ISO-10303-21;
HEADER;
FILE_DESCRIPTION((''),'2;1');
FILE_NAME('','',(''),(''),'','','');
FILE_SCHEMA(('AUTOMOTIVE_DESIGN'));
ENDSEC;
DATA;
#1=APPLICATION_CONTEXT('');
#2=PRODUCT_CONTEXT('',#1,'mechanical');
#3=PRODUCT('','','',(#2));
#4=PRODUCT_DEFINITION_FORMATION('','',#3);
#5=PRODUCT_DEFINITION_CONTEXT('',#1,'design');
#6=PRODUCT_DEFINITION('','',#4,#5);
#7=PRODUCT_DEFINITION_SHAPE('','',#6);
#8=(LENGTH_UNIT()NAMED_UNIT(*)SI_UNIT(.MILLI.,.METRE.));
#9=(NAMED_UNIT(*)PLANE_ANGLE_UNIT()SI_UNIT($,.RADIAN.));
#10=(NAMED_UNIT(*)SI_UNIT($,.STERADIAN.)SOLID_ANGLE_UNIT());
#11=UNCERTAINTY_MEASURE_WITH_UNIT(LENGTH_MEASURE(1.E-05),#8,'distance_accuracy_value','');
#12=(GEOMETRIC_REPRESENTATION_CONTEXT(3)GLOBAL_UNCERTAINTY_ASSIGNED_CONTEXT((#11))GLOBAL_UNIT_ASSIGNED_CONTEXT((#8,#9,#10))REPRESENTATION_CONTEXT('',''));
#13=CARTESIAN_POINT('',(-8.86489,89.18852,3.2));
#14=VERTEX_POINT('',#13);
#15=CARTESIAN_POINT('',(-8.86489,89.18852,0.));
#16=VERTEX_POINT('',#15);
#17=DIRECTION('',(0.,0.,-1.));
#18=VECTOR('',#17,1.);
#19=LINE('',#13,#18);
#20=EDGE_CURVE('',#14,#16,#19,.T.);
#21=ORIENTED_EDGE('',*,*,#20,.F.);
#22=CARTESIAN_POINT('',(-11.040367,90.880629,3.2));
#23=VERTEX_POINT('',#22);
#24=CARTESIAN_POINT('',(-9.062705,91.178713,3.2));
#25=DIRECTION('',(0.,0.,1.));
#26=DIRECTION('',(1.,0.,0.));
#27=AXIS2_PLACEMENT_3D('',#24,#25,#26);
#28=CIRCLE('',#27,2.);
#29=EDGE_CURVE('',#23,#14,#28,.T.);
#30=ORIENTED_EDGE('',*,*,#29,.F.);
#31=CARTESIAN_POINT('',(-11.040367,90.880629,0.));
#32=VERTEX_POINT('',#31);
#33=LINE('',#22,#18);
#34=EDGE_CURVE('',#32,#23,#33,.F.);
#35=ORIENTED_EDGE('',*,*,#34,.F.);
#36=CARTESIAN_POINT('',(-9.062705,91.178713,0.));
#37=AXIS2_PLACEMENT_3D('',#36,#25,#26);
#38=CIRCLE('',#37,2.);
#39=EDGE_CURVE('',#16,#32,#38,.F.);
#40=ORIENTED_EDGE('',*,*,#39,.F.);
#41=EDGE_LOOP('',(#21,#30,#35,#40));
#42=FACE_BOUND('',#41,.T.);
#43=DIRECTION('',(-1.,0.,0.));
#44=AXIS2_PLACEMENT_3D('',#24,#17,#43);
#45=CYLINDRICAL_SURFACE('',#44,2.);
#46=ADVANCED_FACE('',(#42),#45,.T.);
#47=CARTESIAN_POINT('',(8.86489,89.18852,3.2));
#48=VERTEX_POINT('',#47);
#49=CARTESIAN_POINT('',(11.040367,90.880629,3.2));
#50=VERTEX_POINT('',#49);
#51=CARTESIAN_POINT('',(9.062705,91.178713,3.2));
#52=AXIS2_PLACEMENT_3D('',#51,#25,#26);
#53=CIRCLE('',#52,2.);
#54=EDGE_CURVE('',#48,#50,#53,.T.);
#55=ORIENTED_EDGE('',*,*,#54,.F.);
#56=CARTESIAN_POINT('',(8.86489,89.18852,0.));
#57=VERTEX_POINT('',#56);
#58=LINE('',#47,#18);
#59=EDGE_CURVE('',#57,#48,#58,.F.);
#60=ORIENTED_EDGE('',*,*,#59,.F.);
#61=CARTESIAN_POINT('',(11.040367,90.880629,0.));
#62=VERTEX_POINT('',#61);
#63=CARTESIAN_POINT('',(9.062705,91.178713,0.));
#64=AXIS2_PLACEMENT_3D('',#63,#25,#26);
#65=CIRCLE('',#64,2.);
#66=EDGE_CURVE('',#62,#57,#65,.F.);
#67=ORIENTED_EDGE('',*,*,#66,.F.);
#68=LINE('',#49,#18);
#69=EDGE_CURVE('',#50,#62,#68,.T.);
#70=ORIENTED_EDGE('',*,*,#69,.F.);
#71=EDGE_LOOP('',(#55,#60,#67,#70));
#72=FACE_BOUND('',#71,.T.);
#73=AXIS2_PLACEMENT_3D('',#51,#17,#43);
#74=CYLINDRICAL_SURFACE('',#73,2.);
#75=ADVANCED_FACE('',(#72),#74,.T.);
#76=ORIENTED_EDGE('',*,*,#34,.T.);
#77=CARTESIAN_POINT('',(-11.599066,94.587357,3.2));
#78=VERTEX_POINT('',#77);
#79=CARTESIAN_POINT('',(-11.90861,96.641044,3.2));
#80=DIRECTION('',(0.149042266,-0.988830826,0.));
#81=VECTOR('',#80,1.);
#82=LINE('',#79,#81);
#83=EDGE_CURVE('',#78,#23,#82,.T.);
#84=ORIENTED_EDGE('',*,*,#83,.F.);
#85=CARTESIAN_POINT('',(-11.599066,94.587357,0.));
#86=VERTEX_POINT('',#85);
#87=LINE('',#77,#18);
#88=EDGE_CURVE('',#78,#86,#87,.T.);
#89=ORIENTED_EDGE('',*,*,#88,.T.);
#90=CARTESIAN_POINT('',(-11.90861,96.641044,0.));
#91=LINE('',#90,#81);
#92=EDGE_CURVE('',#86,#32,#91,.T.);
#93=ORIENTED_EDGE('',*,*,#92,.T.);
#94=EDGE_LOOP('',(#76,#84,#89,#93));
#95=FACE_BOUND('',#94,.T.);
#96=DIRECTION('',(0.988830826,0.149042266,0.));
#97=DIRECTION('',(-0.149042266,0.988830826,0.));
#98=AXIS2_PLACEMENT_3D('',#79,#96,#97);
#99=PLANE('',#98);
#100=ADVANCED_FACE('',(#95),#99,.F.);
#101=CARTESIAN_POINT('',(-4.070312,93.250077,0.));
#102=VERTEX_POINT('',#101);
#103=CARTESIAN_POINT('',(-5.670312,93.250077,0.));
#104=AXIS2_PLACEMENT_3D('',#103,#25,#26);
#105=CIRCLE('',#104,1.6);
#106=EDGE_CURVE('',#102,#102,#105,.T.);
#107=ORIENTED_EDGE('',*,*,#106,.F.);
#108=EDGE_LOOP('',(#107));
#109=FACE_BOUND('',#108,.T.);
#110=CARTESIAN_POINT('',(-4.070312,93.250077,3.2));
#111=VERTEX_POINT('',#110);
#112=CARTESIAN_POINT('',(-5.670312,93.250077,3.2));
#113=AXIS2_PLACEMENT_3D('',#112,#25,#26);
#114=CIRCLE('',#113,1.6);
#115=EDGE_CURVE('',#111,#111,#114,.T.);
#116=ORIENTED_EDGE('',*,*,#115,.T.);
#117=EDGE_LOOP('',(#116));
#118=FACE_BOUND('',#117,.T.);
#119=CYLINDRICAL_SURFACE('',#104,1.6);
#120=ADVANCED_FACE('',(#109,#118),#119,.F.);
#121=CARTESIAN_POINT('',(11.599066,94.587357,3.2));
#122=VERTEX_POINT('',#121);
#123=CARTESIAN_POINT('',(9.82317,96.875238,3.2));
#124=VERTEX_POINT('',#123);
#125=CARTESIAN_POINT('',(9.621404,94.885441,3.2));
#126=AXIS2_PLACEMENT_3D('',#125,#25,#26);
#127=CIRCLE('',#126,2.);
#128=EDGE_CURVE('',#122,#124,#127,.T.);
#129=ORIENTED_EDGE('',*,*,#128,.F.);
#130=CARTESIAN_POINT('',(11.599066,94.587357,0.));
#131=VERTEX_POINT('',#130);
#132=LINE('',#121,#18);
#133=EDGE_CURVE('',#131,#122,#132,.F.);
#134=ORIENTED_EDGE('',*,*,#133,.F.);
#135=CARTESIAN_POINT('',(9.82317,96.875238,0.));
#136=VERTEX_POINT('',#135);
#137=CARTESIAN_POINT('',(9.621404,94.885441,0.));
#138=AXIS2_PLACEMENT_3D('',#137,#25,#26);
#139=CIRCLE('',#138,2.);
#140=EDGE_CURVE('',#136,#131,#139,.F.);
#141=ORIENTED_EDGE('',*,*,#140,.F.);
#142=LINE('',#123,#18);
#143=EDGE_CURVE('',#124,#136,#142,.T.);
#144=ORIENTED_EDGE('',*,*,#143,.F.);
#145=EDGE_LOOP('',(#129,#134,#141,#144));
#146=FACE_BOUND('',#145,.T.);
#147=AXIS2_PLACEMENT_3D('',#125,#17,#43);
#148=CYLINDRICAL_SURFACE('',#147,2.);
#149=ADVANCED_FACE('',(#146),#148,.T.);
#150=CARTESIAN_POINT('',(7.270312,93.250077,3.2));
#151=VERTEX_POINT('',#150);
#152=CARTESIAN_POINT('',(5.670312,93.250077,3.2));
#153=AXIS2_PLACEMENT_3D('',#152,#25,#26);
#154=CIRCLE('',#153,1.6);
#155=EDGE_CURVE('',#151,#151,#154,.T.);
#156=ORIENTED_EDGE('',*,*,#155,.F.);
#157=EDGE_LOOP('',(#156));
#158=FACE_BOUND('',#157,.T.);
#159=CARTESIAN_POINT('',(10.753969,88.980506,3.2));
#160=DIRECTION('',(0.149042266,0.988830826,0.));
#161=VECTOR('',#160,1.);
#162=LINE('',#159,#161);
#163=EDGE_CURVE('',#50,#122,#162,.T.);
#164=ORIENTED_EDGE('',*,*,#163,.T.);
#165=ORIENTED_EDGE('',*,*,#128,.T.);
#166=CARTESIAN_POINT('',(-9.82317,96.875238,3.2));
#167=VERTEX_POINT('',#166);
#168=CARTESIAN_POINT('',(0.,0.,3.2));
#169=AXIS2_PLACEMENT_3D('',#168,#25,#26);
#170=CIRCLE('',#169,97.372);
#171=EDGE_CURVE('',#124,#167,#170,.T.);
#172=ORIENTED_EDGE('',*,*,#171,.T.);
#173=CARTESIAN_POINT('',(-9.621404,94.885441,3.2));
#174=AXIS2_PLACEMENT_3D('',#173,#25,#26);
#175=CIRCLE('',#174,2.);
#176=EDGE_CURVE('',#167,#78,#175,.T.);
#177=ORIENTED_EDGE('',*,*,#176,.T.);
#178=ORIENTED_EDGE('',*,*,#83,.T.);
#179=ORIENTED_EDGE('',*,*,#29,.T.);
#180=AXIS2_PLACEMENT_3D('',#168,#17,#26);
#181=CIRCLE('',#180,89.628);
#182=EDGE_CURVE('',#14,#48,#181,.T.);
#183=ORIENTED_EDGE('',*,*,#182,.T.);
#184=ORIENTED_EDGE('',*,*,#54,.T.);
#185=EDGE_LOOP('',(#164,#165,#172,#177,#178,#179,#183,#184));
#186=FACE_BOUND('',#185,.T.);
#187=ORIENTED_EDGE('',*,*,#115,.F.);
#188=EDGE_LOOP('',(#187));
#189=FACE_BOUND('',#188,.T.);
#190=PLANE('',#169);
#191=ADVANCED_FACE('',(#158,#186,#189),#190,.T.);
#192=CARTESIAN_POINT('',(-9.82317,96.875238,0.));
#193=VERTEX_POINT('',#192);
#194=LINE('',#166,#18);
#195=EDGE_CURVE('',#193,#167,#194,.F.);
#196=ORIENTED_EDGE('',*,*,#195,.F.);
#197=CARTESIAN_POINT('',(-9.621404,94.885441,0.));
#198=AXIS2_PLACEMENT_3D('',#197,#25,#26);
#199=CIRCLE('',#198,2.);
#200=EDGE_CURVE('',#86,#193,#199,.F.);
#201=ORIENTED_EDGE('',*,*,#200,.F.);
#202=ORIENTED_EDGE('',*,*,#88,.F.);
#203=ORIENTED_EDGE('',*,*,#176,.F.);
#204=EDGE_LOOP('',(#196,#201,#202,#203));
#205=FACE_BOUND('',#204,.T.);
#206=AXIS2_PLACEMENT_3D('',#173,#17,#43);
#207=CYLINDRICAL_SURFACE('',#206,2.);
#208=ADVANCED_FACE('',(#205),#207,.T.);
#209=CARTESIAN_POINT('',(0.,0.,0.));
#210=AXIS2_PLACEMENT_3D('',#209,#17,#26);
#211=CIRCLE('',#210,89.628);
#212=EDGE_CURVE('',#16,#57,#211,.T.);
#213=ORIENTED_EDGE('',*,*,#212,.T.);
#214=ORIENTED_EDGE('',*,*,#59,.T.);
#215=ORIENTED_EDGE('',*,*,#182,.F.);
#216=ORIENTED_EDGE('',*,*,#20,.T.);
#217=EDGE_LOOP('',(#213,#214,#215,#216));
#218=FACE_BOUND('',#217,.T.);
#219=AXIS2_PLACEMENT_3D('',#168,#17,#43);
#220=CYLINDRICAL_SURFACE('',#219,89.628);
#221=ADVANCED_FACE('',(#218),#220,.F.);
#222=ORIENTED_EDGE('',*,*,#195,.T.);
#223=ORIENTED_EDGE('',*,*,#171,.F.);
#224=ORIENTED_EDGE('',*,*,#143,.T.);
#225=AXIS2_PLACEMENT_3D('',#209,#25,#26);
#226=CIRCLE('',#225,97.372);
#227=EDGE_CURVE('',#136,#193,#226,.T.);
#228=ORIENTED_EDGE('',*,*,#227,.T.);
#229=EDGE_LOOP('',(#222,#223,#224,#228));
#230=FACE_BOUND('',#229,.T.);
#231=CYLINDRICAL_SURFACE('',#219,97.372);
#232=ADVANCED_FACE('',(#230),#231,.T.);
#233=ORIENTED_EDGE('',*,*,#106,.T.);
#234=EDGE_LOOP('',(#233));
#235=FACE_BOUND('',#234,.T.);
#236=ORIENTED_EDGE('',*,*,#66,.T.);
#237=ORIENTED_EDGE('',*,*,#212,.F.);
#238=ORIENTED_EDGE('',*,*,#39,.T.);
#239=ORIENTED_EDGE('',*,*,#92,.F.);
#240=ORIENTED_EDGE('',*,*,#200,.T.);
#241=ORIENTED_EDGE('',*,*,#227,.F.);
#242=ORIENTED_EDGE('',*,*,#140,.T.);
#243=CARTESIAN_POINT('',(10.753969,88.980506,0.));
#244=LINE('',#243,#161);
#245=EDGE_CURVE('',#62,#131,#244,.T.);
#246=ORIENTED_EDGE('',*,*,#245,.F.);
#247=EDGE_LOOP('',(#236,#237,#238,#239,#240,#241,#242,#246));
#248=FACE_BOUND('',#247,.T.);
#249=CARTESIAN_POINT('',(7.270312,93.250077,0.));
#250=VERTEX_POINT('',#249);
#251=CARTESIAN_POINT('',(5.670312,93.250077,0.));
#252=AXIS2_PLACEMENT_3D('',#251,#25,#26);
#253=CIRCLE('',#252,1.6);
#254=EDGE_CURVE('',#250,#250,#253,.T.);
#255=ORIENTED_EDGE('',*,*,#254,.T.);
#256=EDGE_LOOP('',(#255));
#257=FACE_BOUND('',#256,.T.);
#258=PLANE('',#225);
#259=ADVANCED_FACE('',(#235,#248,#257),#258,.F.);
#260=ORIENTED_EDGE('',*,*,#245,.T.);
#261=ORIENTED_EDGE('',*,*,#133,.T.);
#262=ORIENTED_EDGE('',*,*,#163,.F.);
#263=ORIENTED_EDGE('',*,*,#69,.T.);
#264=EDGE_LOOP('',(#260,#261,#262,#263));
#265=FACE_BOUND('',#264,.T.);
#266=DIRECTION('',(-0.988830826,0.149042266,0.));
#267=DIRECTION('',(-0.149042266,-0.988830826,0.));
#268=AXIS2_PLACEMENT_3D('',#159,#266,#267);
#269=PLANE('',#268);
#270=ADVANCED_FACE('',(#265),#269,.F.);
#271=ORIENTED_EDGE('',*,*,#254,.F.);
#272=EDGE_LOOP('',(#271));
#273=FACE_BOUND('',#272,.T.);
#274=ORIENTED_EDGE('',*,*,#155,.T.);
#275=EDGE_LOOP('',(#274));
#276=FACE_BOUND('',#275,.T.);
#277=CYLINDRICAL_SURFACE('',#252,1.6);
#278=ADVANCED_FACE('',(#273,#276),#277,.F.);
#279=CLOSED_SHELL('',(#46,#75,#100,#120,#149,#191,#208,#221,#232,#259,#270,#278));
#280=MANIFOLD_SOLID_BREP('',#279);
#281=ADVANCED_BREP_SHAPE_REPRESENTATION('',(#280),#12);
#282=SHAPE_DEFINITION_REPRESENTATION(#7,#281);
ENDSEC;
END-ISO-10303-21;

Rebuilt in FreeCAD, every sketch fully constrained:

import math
import FreeCAD as App
import Part
import Sketcher


def edges_at(feature, points):
    """Names of the edges that pass closest to the given points."""
    edges = feature.Shape.Edges
    near = lambda p: min(range(len(edges)), key=lambda i: edges[i].distToShape(Part.Vertex(*p))[0])
    return sorted({f"Edge{near(p) + 1}" for p in points})

doc = App.newDocument("Part")
body = doc.addObject("PartDesign::Body", "Body")

sketch1 = body.newObject("Sketcher::SketchObject", "Sketch")
sketch1.AttachmentSupport = (doc.getObject("XY_Plane"), [""])
sketch1.MapMode = "FlatFace"
sketch1.addGeometry(Part.LineSegment(App.Vector(-11.90861, 96.641044, 0), App.Vector(-10.753969, 88.980506, 0)), False)
sketch1.addGeometry(Part.ArcOfCircle(Part.Circle(App.Vector(0, 0, 0), App.Vector(0, 0, 1), 89.628), math.radians(83.108793), math.radians(96.891207)), False)
sketch1.addGeometry(Part.LineSegment(App.Vector(10.753969, 88.980506, 0), App.Vector(11.90861, 96.641044, 0)), False)
sketch1.addGeometry(Part.ArcOfCircle(Part.Circle(App.Vector(0, 0, 0), App.Vector(0, 0, 1), 97.372), math.radians(82.975131), math.radians(97.024869)), False)
sketch1.addConstraint(Sketcher.Constraint("Coincident", 0, 2, 1, 2))
sketch1.addConstraint(Sketcher.Constraint("Coincident", 1, 1, 2, 1))
sketch1.addConstraint(Sketcher.Constraint("Coincident", 2, 2, 3, 1))
sketch1.addConstraint(Sketcher.Constraint("Coincident", 3, 2, 0, 1))
sketch1.addConstraint(Sketcher.Constraint("Coincident", 1, 3, -1, 1))
sketch1.addConstraint(Sketcher.Constraint("Coincident", 3, 3, -1, 1))
sketch1.addConstraint(Sketcher.Constraint("Horizontal", 0, 2, 1, 1))
sketch1.addConstraint(Sketcher.Constraint("Horizontal", 2, 2, 3, 2))
sketch1.addConstraint(Sketcher.Constraint("Radius", 1, 89.628))
sketch1.addConstraint(Sketcher.Constraint("Radius", 3, 97.372))
sketch1.addConstraint(Sketcher.Constraint("DistanceX", 0, 2, -1, 1, 10.753969))
sketch1.addConstraint(Sketcher.Constraint("DistanceX", -1, 1, 2, 2, 11.90861))
pad1 = body.newObject("PartDesign::Pad", "Pad")
pad1.Profile = sketch1
pad1.Length = 3.2
doc.recompute()

fillet = body.newObject("PartDesign::Fillet", "Fillet")
fillet.Base = (pad1, edges_at(pad1, [
    (11.909, 96.641, 1.6),
    (10.754, 88.981, 1.6),
    (-10.754, 88.981, 1.6),
    (-11.909, 96.641, 1.6),
]))
fillet.Radius = 2

sketch2 = body.newObject("Sketcher::SketchObject", "Sketch001")
sketch2.AttachmentSupport = (doc.getObject("XY_Plane"), [""])
sketch2.MapMode = "FlatFace"
sketch2.AttachmentOffset = App.Placement(App.Vector(0, 0, 3.2), App.Rotation())
sketch2.addGeometry(Part.Circle(App.Vector(-5.670312, 93.250077, 0), App.Vector(0, 0, 1), 1.6), False)
sketch2.addGeometry(Part.Circle(App.Vector(5.670312, 93.250077, 0), App.Vector(0, 0, 1), 1.6), False)
sketch2.addConstraint(Sketcher.Constraint("Equal", 0, 1))
sketch2.addConstraint(Sketcher.Constraint("Symmetric", 0, 3, 1, 3, -2))
sketch2.addConstraint(Sketcher.Constraint("Diameter", 0, 3.2))
sketch2.addConstraint(Sketcher.Constraint("DistanceX", 0, 3, -1, 1, 5.670312))
sketch2.addConstraint(Sketcher.Constraint("DistanceY", -1, 1, 0, 3, 93.250077))
pocket1 = body.newObject("PartDesign::Pocket", "Pocket")
pocket1.Profile = sketch2
pocket1.Type = "ThroughAll"

doc.recompute()
